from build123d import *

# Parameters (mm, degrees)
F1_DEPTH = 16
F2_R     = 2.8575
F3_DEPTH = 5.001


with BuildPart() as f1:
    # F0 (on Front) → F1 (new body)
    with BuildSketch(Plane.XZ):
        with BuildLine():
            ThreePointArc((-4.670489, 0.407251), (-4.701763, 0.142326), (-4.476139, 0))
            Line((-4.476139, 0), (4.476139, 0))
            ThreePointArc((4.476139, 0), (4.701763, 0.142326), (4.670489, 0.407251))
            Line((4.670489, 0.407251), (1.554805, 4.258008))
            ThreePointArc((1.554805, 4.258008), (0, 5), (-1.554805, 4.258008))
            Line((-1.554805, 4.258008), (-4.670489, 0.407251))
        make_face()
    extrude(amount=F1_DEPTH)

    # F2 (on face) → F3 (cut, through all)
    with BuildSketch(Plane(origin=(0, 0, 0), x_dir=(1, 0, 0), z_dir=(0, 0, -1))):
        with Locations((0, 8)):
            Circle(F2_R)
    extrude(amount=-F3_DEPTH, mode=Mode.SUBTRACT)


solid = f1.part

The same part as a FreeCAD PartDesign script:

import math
import FreeCAD as App
import Part
import Sketcher

V = App.Vector
Q = App.Units.Quantity

doc = App.newDocument("Part")
body = doc.addObject("PartDesign::Body", "Body")

# Sketch on XZ plane
sketch1 = body.newObject("Sketcher::SketchObject", "Sketch")
sketch1.AttachmentSupport = (doc.getObject("XZ_Plane"), [""])
sketch1.MapMode = "FlatFace"
sketch1.addGeometry(Part.ArcOfCircle(Part.Circle(V(-4.48, 0.25, 0), V(0, 0, 1), 0.25), math.radians(141), math.radians(270)), False)
sketch1.addGeometry(Part.LineSegment(V(-4.48, 0, 0), V(4.48, 0, 0)), False)
sketch1.addGeometry(Part.ArcOfCircle(Part.Circle(V(4.48, 0.25, 0), V(0, 0, 1), 0.25), math.radians(-90), math.radians(39)), False)
sketch1.addGeometry(Part.LineSegment(V(4.67, 0.41, 0), V(1.55, 4.26, 0)), False)
sketch1.addGeometry(Part.ArcOfCircle(Part.Circle(V(0, 3, 0), V(0, 0, 1), 2), math.radians(39), math.radians(141)), False)
sketch1.addGeometry(Part.LineSegment(V(-1.55, 4.26, 0), V(-4.67, 0.41, 0)), False)
sketch1.addConstraint(Sketcher.Constraint("Tangent", 0, 2, 1, 1))
sketch1.addConstraint(Sketcher.Constraint("Tangent", 1, 2, 2, 1))
sketch1.addConstraint(Sketcher.Constraint("Tangent", 2, 2, 3, 1))
sketch1.addConstraint(Sketcher.Constraint("Tangent", 3, 2, 4, 1))
sketch1.addConstraint(Sketcher.Constraint("Tangent", 4, 2, 5, 1))
sketch1.addConstraint(Sketcher.Constraint("Tangent", 5, 2, 0, 1))
sketch1.addConstraint(Sketcher.Constraint("Horizontal", 1))
sketch1.addConstraint(Sketcher.Constraint("Equal", 0, 2))
sketch1.addConstraint(Sketcher.Constraint("Symmetric", 0, 2, 1, 2, -1, 1))
sketch1.addConstraint(Sketcher.Constraint("PointOnObject", 4, 3, -2))
sketch1.addConstraint(Sketcher.Constraint("Radius", 4, Q("2.000002 mm")))
sketch1.addConstraint(Sketcher.Constraint("Radius", 0, Q("0.25 mm")))
sketch1.addConstraint(Sketcher.Constraint("DistanceY", -1, 1, 4, 3, Q("2.999998 mm")))
sketch1.addConstraint(Sketcher.Constraint("DistanceX", 1, 1, 1, 2, Q("8.952278 mm")))
pad1 = body.newObject("PartDesign::Pad", "Pad")
pad1.Profile = sketch1
pad1.Length = 16

# Sketch on XY plane
sketch2 = body.newObject("Sketcher::SketchObject", "Sketch001")
sketch2.AttachmentSupport = (doc.getObject("XY_Plane"), [""])
sketch2.MapMode = "FlatFace"
sketch2.addGeometry(Part.Circle(V(0, -8, 0), V(0, 0, 1), 2.9), False)
sketch2.addConstraint(Sketcher.Constraint("PointOnObject", 0, 3, -2))
sketch2.addConstraint(Sketcher.Constraint("Diameter", 0, Q("5.715 mm")))
sketch2.addConstraint(Sketcher.Constraint("DistanceY", 0, 3, -1, 1, Q("8 mm")))
pocket1 = body.newObject("PartDesign::Pocket", "Pocket")
pocket1.Profile = sketch2
pocket1.Type = "ThroughAll"
pocket1.Reversed = True

doc.recompute()
